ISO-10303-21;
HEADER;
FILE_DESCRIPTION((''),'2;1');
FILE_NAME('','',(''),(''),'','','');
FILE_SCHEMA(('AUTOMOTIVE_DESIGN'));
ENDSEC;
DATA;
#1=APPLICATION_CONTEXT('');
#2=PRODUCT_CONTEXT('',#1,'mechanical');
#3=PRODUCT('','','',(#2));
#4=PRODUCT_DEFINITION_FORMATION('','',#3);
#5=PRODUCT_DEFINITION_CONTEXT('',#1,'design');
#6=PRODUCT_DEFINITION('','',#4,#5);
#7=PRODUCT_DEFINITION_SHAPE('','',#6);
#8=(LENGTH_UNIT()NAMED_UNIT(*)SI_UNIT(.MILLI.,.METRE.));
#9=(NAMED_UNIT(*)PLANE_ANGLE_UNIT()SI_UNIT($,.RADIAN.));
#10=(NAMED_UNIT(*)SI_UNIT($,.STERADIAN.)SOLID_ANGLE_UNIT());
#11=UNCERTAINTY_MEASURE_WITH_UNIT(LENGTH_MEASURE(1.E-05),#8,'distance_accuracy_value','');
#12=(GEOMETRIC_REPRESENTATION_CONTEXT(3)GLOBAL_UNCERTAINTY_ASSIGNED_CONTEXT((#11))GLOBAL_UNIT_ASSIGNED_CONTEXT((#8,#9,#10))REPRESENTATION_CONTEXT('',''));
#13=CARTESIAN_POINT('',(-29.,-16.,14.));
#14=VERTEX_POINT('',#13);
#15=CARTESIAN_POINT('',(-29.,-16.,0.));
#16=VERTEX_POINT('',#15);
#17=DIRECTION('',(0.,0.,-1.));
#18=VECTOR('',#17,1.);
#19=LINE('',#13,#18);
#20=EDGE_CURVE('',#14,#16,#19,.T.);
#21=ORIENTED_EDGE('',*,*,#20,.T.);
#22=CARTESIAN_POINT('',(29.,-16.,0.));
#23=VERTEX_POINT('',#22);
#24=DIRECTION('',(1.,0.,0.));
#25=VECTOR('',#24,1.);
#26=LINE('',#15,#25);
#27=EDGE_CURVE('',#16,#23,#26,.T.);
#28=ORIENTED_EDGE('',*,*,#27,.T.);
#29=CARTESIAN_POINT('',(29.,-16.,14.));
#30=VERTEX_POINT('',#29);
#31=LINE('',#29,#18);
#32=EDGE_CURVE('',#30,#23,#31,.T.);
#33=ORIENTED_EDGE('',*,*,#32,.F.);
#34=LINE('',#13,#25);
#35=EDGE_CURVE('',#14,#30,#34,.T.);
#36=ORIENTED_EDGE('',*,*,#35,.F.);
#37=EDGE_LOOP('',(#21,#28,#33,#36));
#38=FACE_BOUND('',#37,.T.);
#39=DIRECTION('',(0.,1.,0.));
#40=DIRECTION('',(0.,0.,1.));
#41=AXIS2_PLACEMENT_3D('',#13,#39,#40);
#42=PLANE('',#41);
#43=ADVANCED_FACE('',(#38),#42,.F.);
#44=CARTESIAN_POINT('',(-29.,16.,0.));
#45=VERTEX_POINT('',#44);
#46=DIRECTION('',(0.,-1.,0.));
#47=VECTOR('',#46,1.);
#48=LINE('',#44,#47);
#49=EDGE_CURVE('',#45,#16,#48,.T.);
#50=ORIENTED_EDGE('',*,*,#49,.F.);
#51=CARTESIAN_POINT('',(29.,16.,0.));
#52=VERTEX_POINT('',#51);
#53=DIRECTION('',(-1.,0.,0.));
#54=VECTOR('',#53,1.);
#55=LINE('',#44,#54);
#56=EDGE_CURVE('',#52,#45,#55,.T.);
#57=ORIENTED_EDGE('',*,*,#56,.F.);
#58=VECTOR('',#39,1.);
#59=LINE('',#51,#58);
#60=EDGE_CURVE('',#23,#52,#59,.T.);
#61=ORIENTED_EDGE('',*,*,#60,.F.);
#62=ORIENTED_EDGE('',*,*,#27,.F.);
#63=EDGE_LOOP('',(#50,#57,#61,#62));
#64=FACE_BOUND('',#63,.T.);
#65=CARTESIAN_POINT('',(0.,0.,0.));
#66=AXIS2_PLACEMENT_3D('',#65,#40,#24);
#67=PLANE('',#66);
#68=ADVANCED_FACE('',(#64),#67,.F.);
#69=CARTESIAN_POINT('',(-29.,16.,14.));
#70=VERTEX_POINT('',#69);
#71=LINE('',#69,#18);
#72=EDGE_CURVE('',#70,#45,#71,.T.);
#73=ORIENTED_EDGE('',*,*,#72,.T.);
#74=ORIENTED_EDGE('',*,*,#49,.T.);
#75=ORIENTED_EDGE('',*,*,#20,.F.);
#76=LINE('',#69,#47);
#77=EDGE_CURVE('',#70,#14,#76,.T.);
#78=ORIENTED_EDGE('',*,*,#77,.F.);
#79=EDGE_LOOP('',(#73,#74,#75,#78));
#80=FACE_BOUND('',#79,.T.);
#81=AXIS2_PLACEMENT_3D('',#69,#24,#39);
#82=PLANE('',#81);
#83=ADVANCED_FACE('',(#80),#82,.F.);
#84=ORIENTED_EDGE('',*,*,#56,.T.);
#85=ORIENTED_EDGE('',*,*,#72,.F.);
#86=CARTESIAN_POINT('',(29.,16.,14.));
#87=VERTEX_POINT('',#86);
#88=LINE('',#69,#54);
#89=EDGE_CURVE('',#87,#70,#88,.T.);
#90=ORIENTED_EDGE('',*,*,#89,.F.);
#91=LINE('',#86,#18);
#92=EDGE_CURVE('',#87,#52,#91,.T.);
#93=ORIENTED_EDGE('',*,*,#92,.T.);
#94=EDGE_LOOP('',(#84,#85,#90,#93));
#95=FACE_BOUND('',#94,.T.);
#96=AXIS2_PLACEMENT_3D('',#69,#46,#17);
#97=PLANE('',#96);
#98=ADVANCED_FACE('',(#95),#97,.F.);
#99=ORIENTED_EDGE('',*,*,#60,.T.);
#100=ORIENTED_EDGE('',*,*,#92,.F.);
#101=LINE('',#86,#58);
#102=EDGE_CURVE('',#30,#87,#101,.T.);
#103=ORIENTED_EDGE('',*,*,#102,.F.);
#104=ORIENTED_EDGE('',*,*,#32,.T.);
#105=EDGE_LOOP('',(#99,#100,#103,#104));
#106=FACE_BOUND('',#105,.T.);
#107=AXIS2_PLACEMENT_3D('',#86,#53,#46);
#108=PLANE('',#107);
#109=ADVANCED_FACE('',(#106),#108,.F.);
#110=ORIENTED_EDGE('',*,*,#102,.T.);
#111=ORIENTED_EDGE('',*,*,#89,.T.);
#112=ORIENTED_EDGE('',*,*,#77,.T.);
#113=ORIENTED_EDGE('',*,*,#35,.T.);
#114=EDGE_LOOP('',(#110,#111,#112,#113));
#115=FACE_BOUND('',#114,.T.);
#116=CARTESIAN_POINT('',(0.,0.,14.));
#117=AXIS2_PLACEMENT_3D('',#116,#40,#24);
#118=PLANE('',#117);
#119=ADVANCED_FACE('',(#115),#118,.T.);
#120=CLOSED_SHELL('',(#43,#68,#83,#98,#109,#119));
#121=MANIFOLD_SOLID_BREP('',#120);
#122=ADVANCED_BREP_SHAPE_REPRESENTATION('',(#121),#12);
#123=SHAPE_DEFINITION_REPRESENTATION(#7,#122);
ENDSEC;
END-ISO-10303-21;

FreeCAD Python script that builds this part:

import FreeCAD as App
import Part
import Sketcher
from FreeCAD import Vector


def add_polygon(sketch, points):
    """Adds a closed chain of lines whose ends are joined by coincident constraints."""
    first, n = sketch.GeometryCount, len(points)
    for a, b in zip(points, points[1:] + points[:1]):
        sketch.addGeometry(Part.LineSegment(App.Vector(*a, 0), App.Vector(*b, 0)), False)
    for i in range(n):
        sketch.addConstraint(Sketcher.Constraint("Coincident", first + i, 2, first + (i + 1) % n, 1))

doc = App.newDocument("Part")
body = doc.addObject("PartDesign::Body", "Body")

# Sketch on XY plane
sketch1 = body.newObject("Sketcher::SketchObject", "Sketch")
sketch1.AttachmentSupport = (doc.getObject("XY_Plane"), [""])
sketch1.MapMode = "FlatFace"
add_polygon(sketch1, [(-29, 16), (-29, -16), (29, -16), (29, 16)])  # lines 0-3
sketch1.addConstraint(Sketcher.Constraint("Vertical", 0))
sketch1.addConstraint(Sketcher.Constraint("Horizontal", 1))
sketch1.addConstraint(Sketcher.Constraint("Vertical", 2))
sketch1.addConstraint(Sketcher.Constraint("Horizontal", 3))
sketch1.addConstraint(Sketcher.Constraint("Symmetric", 0, 2, 2, 2, -1, 1))
sketch1.addConstraint(Sketcher.Constraint("DistanceX", 1, 1, 1, 2, 58.0))
sketch1.addConstraint(Sketcher.Constraint("DistanceY", 0, 2, 0, 1, 32.0))
pad1 = body.newObject("PartDesign::Pad", "Pad")
pad1.Profile = sketch1
pad1.Length = 14

doc.recompute()
